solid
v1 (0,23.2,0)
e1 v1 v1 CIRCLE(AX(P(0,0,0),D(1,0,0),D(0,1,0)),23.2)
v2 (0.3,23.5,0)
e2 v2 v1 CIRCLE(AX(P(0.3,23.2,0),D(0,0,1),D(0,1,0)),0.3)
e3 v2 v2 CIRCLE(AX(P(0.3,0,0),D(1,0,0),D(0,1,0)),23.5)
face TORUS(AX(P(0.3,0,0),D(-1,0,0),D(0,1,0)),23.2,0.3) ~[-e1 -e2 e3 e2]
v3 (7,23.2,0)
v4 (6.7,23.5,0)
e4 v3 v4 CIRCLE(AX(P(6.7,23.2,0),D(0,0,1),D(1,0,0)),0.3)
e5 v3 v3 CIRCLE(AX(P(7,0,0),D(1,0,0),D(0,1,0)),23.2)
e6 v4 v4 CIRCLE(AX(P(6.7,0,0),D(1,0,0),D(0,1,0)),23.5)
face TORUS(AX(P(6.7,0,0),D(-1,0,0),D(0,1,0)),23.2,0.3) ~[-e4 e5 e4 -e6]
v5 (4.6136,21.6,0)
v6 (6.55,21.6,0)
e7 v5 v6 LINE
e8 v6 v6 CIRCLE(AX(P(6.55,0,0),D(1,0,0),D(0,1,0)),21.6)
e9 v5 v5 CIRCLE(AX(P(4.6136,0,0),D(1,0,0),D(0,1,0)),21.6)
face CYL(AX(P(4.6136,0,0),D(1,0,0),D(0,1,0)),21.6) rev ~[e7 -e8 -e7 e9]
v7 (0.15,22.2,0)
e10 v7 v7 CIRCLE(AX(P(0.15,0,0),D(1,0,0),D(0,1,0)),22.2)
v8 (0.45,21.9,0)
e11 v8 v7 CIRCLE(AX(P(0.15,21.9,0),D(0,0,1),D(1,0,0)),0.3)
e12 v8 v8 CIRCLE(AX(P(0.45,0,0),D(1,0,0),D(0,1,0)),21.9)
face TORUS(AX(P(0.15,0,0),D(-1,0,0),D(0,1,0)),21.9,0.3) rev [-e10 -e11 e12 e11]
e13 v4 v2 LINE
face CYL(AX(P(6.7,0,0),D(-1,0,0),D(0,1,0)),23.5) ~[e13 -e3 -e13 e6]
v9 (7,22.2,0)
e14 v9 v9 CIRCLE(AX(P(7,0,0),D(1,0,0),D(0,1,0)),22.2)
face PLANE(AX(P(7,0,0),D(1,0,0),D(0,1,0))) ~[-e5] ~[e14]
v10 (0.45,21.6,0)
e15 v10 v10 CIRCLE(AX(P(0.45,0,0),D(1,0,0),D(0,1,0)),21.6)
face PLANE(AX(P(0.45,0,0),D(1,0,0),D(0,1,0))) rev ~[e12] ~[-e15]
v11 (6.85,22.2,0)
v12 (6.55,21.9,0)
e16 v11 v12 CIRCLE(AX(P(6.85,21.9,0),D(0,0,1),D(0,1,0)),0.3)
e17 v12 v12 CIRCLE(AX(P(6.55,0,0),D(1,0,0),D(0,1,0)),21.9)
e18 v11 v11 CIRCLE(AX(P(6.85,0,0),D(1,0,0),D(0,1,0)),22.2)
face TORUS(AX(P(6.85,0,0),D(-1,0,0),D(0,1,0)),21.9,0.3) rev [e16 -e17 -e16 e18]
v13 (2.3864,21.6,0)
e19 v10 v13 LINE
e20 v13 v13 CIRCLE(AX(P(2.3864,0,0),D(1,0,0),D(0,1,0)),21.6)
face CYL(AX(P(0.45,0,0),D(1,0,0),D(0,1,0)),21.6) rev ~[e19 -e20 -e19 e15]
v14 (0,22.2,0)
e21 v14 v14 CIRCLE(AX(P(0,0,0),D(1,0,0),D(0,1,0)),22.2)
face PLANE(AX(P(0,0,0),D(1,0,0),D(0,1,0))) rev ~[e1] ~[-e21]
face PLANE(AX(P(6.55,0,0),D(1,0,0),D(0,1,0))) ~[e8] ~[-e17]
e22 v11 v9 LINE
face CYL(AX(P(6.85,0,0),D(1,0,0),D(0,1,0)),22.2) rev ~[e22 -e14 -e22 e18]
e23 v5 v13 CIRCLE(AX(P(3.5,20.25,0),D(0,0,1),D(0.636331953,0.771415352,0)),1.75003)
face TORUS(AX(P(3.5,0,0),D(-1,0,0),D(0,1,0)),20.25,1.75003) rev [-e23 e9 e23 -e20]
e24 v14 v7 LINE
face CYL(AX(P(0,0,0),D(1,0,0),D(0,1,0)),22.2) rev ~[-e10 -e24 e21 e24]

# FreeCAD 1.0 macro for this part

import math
import FreeCAD as App
import Part
import Sketcher

V = App.Vector
Q = App.Units.Quantity

doc = App.newDocument("Part")
body = doc.addObject("PartDesign::Body", "Body")

# Sketch on XY plane
sketch1 = doc.addObject("Sketcher::SketchObject", "Sketch")
body.addObject(sketch1)
sketch1.AttachmentSupport = (doc.XY_Plane, [""])
sketch1.MapMode = "FlatFace"
sketch1.addGeometry([
    Part.ArcOfCircle(Part.Circle(V(0.3, 23.2, 0), V(0, 0, 1), 0.3), math.radians(90), math.radians(180)),  # 0
    Part.LineSegment(V(0, 23.2, 0), V(0, 22.2, 0)),  # 1
    Part.LineSegment(V(0, 22.2, 0), V(0.15, 22.2, 0)),  # 2
    Part.ArcOfCircle(Part.Circle(V(0.15, 21.9, 0), V(0, 0, 1), 0.3), math.radians(0), math.radians(90)),  # 3
    Part.LineSegment(V(0.45, 21.9, 0), V(0.45, 21.6, 0)),  # 4
    Part.LineSegment(V(0.45, 21.6, 0), V(2.3864, 21.6, 0)),  # 5
    Part.ArcOfCircle(Part.Circle(V(3.5, 20.25, 0), V(0, 0, 1), 1.75003), math.radians(50.481157), math.radians(129.518843)),  # 6
    Part.LineSegment(V(4.6136, 21.6, 0), V(6.55, 21.6, 0)),  # 7
    Part.LineSegment(V(6.55, 21.6, 0), V(6.55, 21.9, 0)),  # 8
    Part.ArcOfCircle(Part.Circle(V(6.85, 21.9, 0), V(0, 0, 1), 0.3), math.radians(90), math.radians(180)),  # 9
    Part.LineSegment(V(6.85, 22.2, 0), V(7, 22.2, 0)),  # 10
    Part.LineSegment(V(7, 22.2, 0), V(7, 23.2, 0)),  # 11
    Part.ArcOfCircle(Part.Circle(V(6.7, 23.2, 0), V(0, 0, 1), 0.3), math.radians(0), math.radians(90)),  # 12
    Part.LineSegment(V(6.7, 23.5, 0), V(0.3, 23.5, 0)),  # 13
], False)
sketch1.addConstraint([
    Sketcher.Constraint("Tangent", 0, 2, 1, 1),
    Sketcher.Constraint("Coincident", 1, 2, 2, 1),
    Sketcher.Constraint("Tangent", 2, 2, 3, 2),
    Sketcher.Constraint("Tangent", 3, 1, 4, 1),
    Sketcher.Constraint("Coincident", 4, 2, 5, 1),
    Sketcher.Constraint("Coincident", 5, 2, 6, 2),
    Sketcher.Constraint("Coincident", 6, 1, 7, 1),
    Sketcher.Constraint("Coincident", 7, 2, 8, 1),
    Sketcher.Constraint("Tangent", 8, 2, 9, 2),
    Sketcher.Constraint("Tangent", 9, 1, 10, 1),
    Sketcher.Constraint("Coincident", 10, 2, 11, 1),
    Sketcher.Constraint("Tangent", 11, 2, 12, 1),
    Sketcher.Constraint("Tangent", 12, 2, 13, 1),
    Sketcher.Constraint("Tangent", 13, 2, 0, 1),
    Sketcher.Constraint("Vertical", 1),
    Sketcher.Constraint("Horizontal", 2),
    Sketcher.Constraint("Vertical", 4),
    Sketcher.Constraint("Horizontal", 5),
    Sketcher.Constraint("Horizontal", 7),
    Sketcher.Constraint("Vertical", 8),
    Sketcher.Constraint("Horizontal", 10),
    Sketcher.Constraint("Vertical", 11),
    Sketcher.Constraint("Horizontal", 13),
    Sketcher.Constraint("Equal", 0, 3),
    Sketcher.Constraint("Equal", 3, 9),
    Sketcher.Constraint("Equal", 9, 12),
    Sketcher.Constraint("PointOnObject", 0, 2, -2),
    Sketcher.Constraint("Horizontal", 3, 3, 9, 3),
    Sketcher.Constraint("Horizontal", 5, 2, 6, 1),
    Sketcher.Constraint("Equal", 5, 7),
    Sketcher.Constraint("Equal", 2, 10),
    Sketcher.Constraint("Radius", 0, Q("0.3 mm")),
    Sketcher.Constraint("DistanceY", 1, 2, 1, 1, Q("1 mm")),
    Sketcher.Constraint("Radius", 6, Q("1.75 mm")),
    Sketcher.Constraint("DistanceX", 13, 2, 13, 1, Q("6.4 mm")),
    Sketcher.Constraint("DistanceY", 4, 2, 4, 1, Q("0.3 mm")),
    Sketcher.Constraint("DistanceX", 2, 1, 2, 2, Q("0.15 mm")),
    Sketcher.Constraint("DistanceY", -1, 1, 0, 3, Q("23.2 mm")),
    Sketcher.Constraint("DistanceY", -1, 1, 6, 3, Q("20.25 mm")),
])
revolution = doc.addObject("PartDesign::Revolution", "Revolution")
body.addObject(revolution)
revolution.Profile = sketch1
revolution.ReferenceAxis = (sketch1, ["H_Axis"])
revolution.Angle = 360

doc.recompute()
